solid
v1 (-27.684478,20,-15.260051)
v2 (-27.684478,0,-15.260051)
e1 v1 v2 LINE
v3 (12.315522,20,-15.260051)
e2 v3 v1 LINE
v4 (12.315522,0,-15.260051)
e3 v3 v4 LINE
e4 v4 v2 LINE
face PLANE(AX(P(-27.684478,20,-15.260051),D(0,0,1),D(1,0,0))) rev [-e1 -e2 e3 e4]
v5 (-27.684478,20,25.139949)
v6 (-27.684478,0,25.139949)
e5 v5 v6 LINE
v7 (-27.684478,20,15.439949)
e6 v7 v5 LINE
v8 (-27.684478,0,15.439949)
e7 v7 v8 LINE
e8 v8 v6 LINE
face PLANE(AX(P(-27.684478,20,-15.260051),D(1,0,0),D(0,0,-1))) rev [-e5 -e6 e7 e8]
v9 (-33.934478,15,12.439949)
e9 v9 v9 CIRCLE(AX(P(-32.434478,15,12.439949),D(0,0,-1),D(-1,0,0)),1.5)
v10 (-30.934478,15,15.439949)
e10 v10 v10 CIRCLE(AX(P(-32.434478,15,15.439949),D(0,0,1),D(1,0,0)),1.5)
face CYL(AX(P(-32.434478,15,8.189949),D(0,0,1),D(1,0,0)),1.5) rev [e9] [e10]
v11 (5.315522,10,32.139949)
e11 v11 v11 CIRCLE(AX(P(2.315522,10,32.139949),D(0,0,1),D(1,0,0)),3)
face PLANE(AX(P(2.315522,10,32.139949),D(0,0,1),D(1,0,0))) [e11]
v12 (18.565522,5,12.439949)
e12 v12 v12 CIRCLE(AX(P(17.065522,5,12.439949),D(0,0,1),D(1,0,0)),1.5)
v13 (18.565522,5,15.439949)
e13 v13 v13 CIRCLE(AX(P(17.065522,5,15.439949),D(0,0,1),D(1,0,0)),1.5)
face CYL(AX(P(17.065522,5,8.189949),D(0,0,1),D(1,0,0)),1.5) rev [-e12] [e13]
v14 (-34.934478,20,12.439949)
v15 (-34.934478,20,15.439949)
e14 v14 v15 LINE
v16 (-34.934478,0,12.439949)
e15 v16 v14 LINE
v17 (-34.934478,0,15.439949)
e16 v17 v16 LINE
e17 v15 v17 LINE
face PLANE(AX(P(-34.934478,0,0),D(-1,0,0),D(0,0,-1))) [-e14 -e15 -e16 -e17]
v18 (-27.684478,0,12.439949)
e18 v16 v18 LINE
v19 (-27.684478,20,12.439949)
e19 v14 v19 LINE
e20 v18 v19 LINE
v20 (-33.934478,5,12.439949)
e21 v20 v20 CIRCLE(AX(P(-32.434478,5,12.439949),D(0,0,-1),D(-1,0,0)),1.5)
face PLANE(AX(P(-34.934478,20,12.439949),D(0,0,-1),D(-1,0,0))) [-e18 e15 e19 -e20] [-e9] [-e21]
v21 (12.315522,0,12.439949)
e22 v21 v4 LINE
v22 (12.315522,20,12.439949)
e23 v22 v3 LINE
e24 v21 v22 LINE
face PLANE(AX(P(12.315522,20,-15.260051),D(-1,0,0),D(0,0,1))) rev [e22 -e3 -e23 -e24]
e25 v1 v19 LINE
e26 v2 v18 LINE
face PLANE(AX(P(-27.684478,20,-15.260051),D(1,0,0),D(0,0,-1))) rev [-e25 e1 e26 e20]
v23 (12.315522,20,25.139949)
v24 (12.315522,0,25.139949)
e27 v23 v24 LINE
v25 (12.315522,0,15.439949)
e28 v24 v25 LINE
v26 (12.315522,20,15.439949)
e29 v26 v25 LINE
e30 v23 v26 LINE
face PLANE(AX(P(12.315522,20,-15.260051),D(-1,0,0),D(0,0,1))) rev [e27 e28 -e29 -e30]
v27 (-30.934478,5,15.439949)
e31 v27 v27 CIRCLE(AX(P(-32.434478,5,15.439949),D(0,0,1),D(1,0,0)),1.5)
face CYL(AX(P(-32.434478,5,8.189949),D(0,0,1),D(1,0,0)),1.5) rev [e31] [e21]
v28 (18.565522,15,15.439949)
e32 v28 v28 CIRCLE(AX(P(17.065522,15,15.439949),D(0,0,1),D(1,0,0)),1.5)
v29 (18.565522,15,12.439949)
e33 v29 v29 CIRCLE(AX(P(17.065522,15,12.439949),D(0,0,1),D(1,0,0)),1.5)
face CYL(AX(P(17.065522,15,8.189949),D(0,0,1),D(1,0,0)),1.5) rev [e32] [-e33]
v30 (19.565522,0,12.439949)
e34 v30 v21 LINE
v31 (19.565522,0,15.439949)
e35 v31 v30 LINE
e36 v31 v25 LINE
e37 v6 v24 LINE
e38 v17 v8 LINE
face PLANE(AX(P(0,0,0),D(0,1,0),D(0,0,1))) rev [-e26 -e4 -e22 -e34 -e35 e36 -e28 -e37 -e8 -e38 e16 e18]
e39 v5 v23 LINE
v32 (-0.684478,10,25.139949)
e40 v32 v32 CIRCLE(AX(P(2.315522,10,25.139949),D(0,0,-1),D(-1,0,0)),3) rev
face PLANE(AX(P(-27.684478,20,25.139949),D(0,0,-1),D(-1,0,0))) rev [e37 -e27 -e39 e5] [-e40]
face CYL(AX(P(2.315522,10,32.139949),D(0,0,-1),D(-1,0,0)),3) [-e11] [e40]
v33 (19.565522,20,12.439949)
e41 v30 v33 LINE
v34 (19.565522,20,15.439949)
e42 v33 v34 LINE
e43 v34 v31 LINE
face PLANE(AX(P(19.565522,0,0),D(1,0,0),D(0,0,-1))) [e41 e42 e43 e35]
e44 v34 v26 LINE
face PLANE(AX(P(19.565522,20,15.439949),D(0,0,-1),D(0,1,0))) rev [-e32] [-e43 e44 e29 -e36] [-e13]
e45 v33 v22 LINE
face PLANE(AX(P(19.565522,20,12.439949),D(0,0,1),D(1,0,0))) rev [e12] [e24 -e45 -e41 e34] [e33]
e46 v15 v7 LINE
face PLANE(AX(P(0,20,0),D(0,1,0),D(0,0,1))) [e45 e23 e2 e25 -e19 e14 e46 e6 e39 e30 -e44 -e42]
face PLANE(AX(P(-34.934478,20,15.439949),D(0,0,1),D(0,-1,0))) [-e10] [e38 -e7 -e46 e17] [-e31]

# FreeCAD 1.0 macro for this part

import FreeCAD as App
import Part
import Sketcher

doc = App.newDocument("Part")
body = doc.addObject("PartDesign::Body", "Body")

# Sketch on XZ plane
sketch1 = body.newObject("Sketcher::SketchObject", "Sketch")
sketch1.AttachmentSupport = (doc.getObject("XZ_Plane"), [""])
sketch1.MapMode = "FlatFace"
sketch1.addGeometry([
    Part.LineSegment(App.Vector(-28, -15, 0), App.Vector(-28, 25, 0)),
    Part.LineSegment(App.Vector(-28, 25, 0), App.Vector(12, 25, 0)),
    Part.LineSegment(App.Vector(12, 25, 0), App.Vector(12, -15, 0)),
    Part.LineSegment(App.Vector(12, -15, 0), App.Vector(-28, -15, 0)),
], False)
sketch1.addConstraint([
    Sketcher.Constraint("Coincident", 0, 2, 1, 1),
    Sketcher.Constraint("Coincident", 1, 2, 2, 1),
    Sketcher.Constraint("Coincident", 2, 2, 3, 1),
    Sketcher.Constraint("Coincident", 3, 2, 0, 1),
    Sketcher.Constraint("Vertical", 0),
    Sketcher.Constraint("Horizontal", 1),
    Sketcher.Constraint("Vertical", 2),
    Sketcher.Constraint("Horizontal", 3),
    Sketcher.Constraint("DistanceX", 1, 1, 1, 2, 40.0),
    Sketcher.Constraint("DistanceY", 0, 1, 0, 2, 40.4),
    Sketcher.Constraint("DistanceX", 0, 2, -1, 1, 27.684478),
    Sketcher.Constraint("DistanceY", -1, 1, 0, 2, 25.139949),
])
pad1 = body.newObject("PartDesign::Pad", "Pad")
pad1.Profile = sketch1
pad1.Length = 20
pad1.Reversed = True

# Sketch on YZ plane
sketch2 = body.newObject("Sketcher::SketchObject", "Sketch001")
sketch2.AttachmentSupport = (doc.getObject("YZ_Plane"), [""])
sketch2.MapMode = "FlatFace"
sketch2.AttachmentOffset = App.Placement(App.Vector(0, 0, 12.315522), App.Rotation())
sketch2.addGeometry([
    Part.LineSegment(App.Vector(20, 15.4, 0), App.Vector(0, 15.4, 0)),
    Part.LineSegment(App.Vector(0, 15.4, 0), App.Vector(0, 12.4, 0)),
    Part.LineSegment(App.Vector(0, 12.4, 0), App.Vector(20, 12.4, 0)),
    Part.LineSegment(App.Vector(20, 12.4, 0), App.Vector(20, 15.4, 0)),
], False)
sketch2.addConstraint([
    Sketcher.Constraint("Coincident", 0, 2, 1, 1),
    Sketcher.Constraint("Coincident", 1, 2, 2, 1),
    Sketcher.Constraint("Coincident", 2, 2, 3, 1),
    Sketcher.Constraint("Coincident", 3, 2, 0, 1),
    Sketcher.Constraint("Horizontal", 0),
    Sketcher.Constraint("Vertical", 1),
    Sketcher.Constraint("Horizontal", 2),
    Sketcher.Constraint("Vertical", 3),
    Sketcher.Constraint("PointOnObject", 0, 2, -2),
    Sketcher.Constraint("DistanceX", 0, 2, 0, 1, 20.0),
    Sketcher.Constraint("DistanceY", 1, 2, 1, 1, 3.0),
    Sketcher.Constraint("DistanceY", -1, 1, 0, 2, 15.439949),
])
pad2 = body.newObject("PartDesign::Pad", "Pad001")
pad2.Profile = sketch2
pad2.Length = 7.25
doc.recompute()

datumplane = body.newObject("PartDesign::Plane", "DatumPlane")
datumplane.AttachmentSupport = (doc.getObject("YZ_Plane"), [""])
datumplane.MapMode = "FlatFace"
datumplane.AttachmentOffset = App.Placement(App.Vector(0, 0, -7.684478), App.Rotation())
mirrored = body.newObject("PartDesign::Mirrored", "Mirrored")
mirrored.Originals = [pad2]
mirrored.MirrorPlane = (datumplane, [""])
body.Tip = mirrored

# Sketch on XY plane
sketch3 = body.newObject("Sketcher::SketchObject", "Sketch002")
sketch3.AttachmentSupport = (doc.getObject("XY_Plane"), [""])
sketch3.MapMode = "FlatFace"
sketch3.AttachmentOffset = App.Placement(App.Vector(0, 0, 15.439949), App.Rotation())
sketch3.addGeometry([
    Part.Circle(App.Vector(17.1, 15, 0), App.Vector(0, 0, 1), 1.5),
    Part.Circle(App.Vector(17.1, 5, 0), App.Vector(0, 0, 1), 1.5),
    Part.Circle(App.Vector(-32.4, 15, 0), App.Vector(0, 0, 1), 1.5),
    Part.Circle(App.Vector(-32.4, 5, 0), App.Vector(0, 0, 1), 1.5),
], False)
sketch3.addConstraint([
    Sketcher.Constraint("Equal", 0, 1),
    Sketcher.Constraint("Equal", 1, 2),
    Sketcher.Constraint("Equal", 2, 3),
    Sketcher.Constraint("Horizontal", 0, 3, 2, 3),
    Sketcher.Constraint("Horizontal", 1, 3, 3, 3),
    Sketcher.Constraint("Vertical", 0, 3, 1, 3),
    Sketcher.Constraint("Vertical", 2, 3, 3, 3),
    Sketcher.Constraint("Diameter", 0, 3.0),
    Sketcher.Constraint("DistanceY", -1, 1, 0, 3, 15.0),
    Sketcher.Constraint("DistanceY", -1, 1, 1, 3, 5.0),
    Sketcher.Constraint("DistanceX", 2, 3, 0, 3, 49.5),
    Sketcher.Constraint("DistanceX", -1, 1, 0, 3, 17.065522),
])
pocket1 = body.newObject("PartDesign::Pocket", "Pocket")
pocket1.Profile = sketch3
pocket1.Length = 7.25

# Sketch on XY plane
sketch4 = body.newObject("Sketcher::SketchObject", "Sketch003")
sketch4.AttachmentSupport = (doc.getObject("XY_Plane"), [""])
sketch4.MapMode = "FlatFace"
sketch4.AttachmentOffset = App.Placement(App.Vector(0, 0, 25.139949), App.Rotation())
sketch4.addGeometry(Part.Circle(App.Vector(2.3, 10, 0), App.Vector(0, 0, 1), 3), False)
sketch4.addConstraint([
    Sketcher.Constraint("Diameter", 0, 6.0),
    Sketcher.Constraint("DistanceY", -1, 1, 0, 3, 10.0),
    Sketcher.Constraint("DistanceX", -1, 1, 0, 3, 2.315522),
])
pad3 = body.newObject("PartDesign::Pad", "Pad002")
pad3.Profile = sketch4
pad3.Length = 7

doc.recompute()
